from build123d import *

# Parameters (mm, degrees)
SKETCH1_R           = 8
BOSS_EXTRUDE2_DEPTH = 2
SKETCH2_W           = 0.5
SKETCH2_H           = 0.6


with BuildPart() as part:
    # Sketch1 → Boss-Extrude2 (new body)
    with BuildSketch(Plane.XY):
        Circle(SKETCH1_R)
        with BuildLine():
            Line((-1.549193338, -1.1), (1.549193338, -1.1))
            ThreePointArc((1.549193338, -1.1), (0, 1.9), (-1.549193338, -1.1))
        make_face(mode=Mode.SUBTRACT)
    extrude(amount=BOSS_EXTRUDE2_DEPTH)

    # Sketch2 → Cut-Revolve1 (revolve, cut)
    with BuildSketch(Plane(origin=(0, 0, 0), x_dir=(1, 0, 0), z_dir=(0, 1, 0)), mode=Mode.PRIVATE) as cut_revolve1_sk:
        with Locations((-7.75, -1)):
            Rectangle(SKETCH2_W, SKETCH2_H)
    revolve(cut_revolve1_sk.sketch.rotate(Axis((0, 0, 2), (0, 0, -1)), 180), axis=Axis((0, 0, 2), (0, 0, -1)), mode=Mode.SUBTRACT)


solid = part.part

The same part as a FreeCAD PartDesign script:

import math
import FreeCAD as App
import Part
import Sketcher


def add_polygon(sketch, points):
    """Adds a closed chain of lines whose ends are joined by coincident constraints."""
    first, n = sketch.GeometryCount, len(points)
    for a, b in zip(points, points[1:] + points[:1]):
        sketch.addGeometry(Part.LineSegment(App.Vector(*a, 0), App.Vector(*b, 0)), False)
    for i in range(n):
        sketch.addConstraint(Sketcher.Constraint("Coincident", first + i, 2, first + (i + 1) % n, 1))

doc = App.newDocument("Part")
body = doc.addObject("PartDesign::Body", "Body")

sketch1 = doc.addObject("Sketcher::SketchObject", "Sketch")
body.addObject(sketch1)
sketch1.AttachmentSupport = (doc.XY_Plane, [""])
sketch1.MapMode = "FlatFace"
sketch1.addGeometry([
    Part.Circle(App.Vector(0, 0, 0), App.Vector(0, 0, 1), 8),
    Part.LineSegment(App.Vector(1.5, -1.1, 0), App.Vector(-1.5, -1.1, 0)),
    Part.ArcOfCircle(Part.Circle(App.Vector(0, 0, 0), App.Vector(0, 0, 1), 1.9), math.radians(-35), math.radians(215)),
], False)
sketch1.addConstraint([
    Sketcher.Constraint("Coincident", 1, 1, 2, 1),
    Sketcher.Constraint("Coincident", 2, 2, 1, 2),
    Sketcher.Constraint("Horizontal", 1),
    Sketcher.Constraint("Coincident", 0, 3, -1, 1),
    Sketcher.Constraint("Coincident", 2, 3, -1, 1),
    Sketcher.Constraint("Diameter", 0, 16.0),
    Sketcher.Constraint("Radius", 2, 1.9),
    Sketcher.Constraint("DistanceY", 1, 1, -1, 1, 1.1),
])
pad1 = doc.addObject("PartDesign::Pad", "Pad")
body.addObject(pad1)
pad1.Profile = sketch1
pad1.Length = 2

sketch2 = doc.addObject("Sketcher::SketchObject", "Sketch001")
body.addObject(sketch2)
sketch2.AttachmentSupport = (doc.XZ_Plane, [""])
sketch2.MapMode = "FlatFace"
add_polygon(sketch2, [(-8, 0.7), (-8, 1.3), (-7.5, 1.3), (-7.5, 0.7)])
sketch2.addConstraint([
    Sketcher.Constraint("Vertical", 0),
    Sketcher.Constraint("Horizontal", 1),
    Sketcher.Constraint("Vertical", 2),
    Sketcher.Constraint("Horizontal", 3),
    Sketcher.Constraint("DistanceX", 1, 1, 1, 2, 0.5),
    Sketcher.Constraint("DistanceY", 0, 1, 0, 2, 0.6),
    Sketcher.Constraint("DistanceX", 0, 2, -1, 1, 8.0),
    Sketcher.Constraint("DistanceY", -1, 1, 0, 2, 1.3),
])
groove = doc.addObject("PartDesign::Groove", "Groove")
body.addObject(groove)
groove.Profile = sketch2
groove.ReferenceAxis = (sketch2, ["V_Axis"])
groove.Angle = 360

doc.recompute()
